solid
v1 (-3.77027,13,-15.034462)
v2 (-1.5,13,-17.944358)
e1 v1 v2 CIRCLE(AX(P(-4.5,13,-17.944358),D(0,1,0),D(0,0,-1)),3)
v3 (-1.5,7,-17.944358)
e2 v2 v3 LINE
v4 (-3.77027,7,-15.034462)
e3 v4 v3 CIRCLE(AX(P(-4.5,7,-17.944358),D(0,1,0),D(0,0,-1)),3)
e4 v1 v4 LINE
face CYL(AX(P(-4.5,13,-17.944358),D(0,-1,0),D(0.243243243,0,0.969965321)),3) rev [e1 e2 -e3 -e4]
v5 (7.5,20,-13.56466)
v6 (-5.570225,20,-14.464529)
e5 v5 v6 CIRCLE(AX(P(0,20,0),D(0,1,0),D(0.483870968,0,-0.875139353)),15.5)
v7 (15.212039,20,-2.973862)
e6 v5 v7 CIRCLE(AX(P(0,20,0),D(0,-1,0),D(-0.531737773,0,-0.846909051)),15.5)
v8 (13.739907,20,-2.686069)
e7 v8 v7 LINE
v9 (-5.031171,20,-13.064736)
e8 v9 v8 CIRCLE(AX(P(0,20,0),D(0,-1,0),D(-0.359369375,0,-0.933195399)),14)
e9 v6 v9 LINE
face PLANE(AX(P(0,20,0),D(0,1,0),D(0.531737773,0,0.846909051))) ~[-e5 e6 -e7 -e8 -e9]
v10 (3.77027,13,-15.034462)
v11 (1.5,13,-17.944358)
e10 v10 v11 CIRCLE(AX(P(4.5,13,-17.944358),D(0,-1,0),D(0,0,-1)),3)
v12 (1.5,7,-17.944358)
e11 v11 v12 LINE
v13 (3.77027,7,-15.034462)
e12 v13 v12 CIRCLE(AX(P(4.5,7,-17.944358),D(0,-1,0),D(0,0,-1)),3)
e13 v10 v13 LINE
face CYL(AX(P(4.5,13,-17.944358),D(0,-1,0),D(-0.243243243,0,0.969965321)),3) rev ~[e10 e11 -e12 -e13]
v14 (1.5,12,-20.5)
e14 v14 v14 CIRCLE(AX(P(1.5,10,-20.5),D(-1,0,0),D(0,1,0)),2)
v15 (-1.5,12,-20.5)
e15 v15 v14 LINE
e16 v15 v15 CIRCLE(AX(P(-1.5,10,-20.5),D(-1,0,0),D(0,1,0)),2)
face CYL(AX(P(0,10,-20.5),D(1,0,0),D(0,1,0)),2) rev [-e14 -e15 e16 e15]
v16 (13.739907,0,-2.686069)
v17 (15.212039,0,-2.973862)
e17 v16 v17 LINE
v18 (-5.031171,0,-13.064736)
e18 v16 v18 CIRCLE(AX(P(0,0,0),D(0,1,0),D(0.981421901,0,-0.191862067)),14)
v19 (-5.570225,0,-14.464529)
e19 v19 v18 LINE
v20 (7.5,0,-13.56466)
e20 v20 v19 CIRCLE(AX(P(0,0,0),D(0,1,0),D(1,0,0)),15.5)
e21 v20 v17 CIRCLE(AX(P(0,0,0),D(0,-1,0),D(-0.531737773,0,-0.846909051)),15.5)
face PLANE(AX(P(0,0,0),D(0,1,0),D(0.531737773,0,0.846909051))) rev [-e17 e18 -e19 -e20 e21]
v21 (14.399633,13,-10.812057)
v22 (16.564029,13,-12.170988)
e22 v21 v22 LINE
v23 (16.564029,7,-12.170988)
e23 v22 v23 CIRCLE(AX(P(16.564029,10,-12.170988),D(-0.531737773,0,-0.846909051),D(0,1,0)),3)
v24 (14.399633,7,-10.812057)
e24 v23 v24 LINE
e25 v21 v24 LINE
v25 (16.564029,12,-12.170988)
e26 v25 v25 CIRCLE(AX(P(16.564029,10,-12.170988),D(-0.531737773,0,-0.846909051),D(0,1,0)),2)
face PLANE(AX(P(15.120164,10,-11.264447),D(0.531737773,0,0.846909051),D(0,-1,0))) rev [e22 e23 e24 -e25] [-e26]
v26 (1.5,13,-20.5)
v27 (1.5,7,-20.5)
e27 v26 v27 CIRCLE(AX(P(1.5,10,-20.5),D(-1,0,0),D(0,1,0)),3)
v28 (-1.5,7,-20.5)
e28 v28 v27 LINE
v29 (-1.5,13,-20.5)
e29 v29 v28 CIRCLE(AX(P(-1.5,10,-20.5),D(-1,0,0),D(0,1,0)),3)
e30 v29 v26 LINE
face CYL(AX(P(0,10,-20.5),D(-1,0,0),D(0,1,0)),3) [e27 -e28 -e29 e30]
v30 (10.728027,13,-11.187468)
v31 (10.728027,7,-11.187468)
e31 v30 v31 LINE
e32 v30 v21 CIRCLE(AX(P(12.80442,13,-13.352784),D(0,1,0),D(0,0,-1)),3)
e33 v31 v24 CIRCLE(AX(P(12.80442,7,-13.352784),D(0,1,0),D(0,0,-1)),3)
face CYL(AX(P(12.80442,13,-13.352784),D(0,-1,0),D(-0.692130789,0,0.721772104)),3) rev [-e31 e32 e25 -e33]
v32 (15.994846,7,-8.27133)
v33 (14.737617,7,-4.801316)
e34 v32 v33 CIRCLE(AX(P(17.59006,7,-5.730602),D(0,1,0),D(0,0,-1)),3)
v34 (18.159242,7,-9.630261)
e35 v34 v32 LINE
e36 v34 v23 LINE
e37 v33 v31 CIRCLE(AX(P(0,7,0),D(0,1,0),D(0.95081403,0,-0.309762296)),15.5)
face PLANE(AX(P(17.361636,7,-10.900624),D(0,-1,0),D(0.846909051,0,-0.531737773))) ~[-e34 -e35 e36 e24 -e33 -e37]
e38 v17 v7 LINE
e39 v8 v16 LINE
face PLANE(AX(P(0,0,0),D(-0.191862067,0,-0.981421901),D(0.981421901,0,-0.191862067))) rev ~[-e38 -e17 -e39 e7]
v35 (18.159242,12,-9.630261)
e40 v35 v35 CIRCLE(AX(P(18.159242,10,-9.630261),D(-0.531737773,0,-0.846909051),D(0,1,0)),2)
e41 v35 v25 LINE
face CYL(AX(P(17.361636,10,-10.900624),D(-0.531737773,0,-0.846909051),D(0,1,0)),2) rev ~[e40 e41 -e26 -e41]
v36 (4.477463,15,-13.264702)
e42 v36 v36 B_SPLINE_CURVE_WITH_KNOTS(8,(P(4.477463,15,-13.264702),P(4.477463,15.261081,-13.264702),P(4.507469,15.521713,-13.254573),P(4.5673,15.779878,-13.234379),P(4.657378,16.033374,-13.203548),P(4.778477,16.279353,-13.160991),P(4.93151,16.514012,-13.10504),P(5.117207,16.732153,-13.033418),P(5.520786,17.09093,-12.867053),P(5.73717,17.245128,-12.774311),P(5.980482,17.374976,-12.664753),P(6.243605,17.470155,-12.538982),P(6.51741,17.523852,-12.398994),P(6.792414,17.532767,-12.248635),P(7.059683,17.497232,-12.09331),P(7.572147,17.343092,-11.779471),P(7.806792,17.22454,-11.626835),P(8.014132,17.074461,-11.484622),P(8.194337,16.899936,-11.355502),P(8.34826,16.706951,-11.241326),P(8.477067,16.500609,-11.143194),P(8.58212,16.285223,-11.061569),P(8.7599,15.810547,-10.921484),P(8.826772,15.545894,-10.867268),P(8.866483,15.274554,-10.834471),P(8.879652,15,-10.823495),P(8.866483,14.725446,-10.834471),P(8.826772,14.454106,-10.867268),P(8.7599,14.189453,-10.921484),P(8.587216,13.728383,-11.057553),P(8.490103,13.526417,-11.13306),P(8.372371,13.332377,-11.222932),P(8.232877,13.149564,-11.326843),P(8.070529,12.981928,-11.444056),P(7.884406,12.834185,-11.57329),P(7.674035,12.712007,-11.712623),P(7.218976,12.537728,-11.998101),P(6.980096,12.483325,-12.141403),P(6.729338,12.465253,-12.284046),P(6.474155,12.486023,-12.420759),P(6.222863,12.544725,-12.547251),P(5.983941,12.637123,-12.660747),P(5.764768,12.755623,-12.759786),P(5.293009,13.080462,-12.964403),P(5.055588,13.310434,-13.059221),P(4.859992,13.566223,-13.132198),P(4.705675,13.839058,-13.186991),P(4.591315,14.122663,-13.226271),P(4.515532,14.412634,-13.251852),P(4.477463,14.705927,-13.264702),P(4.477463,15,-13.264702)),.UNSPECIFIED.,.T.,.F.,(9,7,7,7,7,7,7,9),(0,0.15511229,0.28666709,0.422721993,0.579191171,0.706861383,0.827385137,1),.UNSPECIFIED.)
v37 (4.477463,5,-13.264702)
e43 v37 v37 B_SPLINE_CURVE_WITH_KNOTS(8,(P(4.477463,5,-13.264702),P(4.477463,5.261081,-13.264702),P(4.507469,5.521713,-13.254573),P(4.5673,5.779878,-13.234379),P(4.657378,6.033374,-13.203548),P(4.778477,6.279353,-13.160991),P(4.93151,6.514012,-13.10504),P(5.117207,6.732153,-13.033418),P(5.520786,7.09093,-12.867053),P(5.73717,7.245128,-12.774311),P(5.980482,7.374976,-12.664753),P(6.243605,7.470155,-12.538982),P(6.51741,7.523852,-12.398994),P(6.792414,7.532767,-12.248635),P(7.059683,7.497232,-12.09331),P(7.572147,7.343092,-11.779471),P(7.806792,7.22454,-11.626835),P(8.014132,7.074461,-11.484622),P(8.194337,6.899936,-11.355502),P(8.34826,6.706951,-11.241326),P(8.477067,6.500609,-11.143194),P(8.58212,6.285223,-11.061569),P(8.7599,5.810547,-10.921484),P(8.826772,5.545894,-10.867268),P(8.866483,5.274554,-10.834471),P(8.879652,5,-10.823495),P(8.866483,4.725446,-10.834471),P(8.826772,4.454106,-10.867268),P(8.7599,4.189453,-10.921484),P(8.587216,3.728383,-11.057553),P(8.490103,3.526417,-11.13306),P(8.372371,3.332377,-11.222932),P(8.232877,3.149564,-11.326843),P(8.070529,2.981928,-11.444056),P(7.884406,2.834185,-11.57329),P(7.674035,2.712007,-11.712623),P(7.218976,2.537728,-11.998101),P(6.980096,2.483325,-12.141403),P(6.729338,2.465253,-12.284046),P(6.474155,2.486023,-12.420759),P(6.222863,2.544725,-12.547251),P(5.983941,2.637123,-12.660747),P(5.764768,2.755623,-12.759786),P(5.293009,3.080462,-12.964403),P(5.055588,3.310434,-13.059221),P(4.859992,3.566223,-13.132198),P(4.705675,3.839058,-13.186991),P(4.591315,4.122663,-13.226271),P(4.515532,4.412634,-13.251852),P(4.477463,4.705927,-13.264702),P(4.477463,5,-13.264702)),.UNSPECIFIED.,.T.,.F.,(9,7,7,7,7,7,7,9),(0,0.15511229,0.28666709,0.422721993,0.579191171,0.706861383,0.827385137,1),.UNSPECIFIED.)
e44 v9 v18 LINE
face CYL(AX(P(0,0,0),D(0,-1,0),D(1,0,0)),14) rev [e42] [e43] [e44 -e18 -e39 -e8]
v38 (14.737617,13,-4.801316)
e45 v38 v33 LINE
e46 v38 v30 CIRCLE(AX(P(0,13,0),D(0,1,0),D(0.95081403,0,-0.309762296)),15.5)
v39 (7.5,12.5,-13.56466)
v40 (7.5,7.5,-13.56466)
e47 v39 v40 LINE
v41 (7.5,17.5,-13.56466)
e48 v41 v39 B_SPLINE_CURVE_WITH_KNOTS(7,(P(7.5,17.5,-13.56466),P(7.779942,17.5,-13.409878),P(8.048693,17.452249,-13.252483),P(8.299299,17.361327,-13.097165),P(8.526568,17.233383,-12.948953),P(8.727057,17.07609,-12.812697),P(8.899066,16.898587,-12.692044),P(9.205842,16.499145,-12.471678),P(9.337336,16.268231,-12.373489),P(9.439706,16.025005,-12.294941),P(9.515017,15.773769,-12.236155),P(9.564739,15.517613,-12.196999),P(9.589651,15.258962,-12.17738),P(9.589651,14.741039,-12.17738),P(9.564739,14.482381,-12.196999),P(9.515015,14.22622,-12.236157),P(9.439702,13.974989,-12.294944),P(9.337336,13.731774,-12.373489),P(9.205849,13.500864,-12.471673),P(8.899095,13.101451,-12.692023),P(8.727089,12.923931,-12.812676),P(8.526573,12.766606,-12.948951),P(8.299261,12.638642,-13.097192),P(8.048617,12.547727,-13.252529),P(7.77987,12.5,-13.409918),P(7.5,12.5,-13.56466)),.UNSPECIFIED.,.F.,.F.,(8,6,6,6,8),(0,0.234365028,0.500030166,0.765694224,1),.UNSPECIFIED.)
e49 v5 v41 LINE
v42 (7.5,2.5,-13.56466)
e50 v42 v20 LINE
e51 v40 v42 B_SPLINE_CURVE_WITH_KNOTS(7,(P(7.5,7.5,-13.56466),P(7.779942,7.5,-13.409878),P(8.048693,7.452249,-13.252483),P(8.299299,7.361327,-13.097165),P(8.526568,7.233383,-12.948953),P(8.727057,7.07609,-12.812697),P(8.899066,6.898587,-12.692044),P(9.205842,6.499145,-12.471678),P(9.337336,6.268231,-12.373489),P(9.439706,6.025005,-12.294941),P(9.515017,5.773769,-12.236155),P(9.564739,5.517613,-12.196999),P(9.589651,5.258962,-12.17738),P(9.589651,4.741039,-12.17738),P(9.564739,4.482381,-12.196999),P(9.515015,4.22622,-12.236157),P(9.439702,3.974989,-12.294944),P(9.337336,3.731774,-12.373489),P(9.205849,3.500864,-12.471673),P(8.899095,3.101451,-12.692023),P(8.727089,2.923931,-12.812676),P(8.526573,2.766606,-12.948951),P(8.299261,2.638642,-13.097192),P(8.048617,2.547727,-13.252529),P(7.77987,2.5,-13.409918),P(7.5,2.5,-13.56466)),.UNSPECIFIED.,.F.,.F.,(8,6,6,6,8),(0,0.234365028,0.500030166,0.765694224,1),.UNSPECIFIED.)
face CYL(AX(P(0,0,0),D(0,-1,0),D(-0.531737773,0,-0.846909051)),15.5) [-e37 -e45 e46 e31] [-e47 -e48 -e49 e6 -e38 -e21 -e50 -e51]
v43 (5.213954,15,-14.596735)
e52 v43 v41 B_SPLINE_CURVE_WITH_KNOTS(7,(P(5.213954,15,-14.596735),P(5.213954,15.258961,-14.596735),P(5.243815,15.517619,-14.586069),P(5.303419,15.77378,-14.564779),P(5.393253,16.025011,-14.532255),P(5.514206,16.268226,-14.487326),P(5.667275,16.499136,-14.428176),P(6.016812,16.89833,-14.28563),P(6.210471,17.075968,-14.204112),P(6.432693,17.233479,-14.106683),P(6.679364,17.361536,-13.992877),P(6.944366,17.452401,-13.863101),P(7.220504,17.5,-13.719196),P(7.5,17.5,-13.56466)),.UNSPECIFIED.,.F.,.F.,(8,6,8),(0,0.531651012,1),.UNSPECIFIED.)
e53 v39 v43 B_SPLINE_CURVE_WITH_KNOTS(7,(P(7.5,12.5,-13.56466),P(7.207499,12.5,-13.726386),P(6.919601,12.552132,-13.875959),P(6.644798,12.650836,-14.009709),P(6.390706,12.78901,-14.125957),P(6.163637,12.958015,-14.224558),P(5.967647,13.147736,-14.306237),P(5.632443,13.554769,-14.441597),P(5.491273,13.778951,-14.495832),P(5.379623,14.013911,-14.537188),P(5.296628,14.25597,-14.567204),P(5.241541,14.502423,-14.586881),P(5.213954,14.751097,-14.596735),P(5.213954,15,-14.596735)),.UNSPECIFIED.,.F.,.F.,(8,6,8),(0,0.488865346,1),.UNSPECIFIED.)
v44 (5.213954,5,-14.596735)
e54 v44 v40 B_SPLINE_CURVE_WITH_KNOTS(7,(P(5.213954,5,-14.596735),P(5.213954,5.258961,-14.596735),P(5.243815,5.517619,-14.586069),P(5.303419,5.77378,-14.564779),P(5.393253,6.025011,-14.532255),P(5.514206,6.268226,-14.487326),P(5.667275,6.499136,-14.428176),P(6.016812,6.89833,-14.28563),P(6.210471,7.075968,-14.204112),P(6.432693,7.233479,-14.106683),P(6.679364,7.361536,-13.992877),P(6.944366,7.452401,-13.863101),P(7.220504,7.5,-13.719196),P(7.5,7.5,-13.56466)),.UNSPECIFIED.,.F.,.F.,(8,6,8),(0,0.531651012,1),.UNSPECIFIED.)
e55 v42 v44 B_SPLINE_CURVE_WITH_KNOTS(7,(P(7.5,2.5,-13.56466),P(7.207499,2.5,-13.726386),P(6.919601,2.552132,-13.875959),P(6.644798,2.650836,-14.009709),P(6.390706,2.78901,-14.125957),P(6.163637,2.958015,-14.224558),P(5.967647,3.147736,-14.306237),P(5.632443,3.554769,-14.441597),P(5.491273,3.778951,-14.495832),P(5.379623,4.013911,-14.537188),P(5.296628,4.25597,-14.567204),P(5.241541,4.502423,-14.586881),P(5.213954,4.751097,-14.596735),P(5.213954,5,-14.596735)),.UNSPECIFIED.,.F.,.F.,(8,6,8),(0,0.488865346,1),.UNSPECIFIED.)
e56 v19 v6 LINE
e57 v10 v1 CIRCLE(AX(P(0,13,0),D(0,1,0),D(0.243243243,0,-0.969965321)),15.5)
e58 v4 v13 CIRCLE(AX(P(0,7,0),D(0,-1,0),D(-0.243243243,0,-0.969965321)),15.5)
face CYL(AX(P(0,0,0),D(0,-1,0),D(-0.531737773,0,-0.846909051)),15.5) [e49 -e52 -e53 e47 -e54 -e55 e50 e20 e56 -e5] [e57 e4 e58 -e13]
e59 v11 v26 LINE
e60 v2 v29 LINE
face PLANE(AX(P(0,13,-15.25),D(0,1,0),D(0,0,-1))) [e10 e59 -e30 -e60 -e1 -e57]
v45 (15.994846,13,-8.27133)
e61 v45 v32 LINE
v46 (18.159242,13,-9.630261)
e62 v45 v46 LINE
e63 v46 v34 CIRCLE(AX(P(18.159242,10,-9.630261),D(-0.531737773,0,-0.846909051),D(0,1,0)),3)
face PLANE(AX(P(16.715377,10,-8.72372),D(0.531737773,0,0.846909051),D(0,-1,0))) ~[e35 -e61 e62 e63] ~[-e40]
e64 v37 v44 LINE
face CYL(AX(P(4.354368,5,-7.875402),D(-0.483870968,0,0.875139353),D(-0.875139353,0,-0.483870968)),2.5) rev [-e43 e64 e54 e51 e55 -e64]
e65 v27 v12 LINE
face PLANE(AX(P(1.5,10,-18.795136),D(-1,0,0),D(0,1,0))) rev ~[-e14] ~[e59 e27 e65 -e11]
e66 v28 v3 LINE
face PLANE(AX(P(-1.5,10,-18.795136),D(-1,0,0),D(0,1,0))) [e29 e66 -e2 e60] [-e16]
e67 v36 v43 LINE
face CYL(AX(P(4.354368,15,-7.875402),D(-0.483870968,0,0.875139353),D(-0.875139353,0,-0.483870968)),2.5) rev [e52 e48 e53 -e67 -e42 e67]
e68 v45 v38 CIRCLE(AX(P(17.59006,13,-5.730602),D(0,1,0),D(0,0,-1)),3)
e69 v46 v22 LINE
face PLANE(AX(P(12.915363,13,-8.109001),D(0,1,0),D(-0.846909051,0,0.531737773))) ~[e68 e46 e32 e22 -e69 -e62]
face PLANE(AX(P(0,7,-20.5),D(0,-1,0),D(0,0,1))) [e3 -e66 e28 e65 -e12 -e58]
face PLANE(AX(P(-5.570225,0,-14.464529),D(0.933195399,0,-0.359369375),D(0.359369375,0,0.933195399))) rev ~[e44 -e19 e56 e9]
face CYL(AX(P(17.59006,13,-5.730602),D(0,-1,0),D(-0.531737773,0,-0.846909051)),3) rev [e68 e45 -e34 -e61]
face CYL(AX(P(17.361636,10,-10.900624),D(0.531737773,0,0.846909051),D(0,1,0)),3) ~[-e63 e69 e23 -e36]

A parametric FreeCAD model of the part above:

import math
import FreeCAD as App
import Part
import Sketcher


def edges_at(feature, points):
    """Names of the edges that pass closest to the given points."""
    edges = feature.Shape.Edges
    near = lambda p: min(range(len(edges)), key=lambda i: edges[i].distToShape(Part.Vertex(*p))[0])
    return sorted({f"Edge{near(p) + 1}" for p in points})


def add_polygon(sketch, points):
    """Adds a closed chain of lines whose ends are joined by coincident constraints."""
    first, n = sketch.GeometryCount, len(points)
    for a, b in zip(points, points[1:] + points[:1]):
        sketch.addGeometry(Part.LineSegment(App.Vector(*a, 0), App.Vector(*b, 0)), False)
    for i in range(n):
        sketch.addConstraint(Sketcher.Constraint("Coincident", first + i, 2, first + (i + 1) % n, 1))

doc = App.newDocument("Part")
body = doc.addObject("PartDesign::Body", "Body")

# Sketch on XZ plane
sketch1 = doc.addObject("Sketcher::SketchObject", "Sketch")
body.addObject(sketch1)
sketch1.AttachmentSupport = (doc.XZ_Plane, [""])
sketch1.MapMode = "FlatFace"
sketch1.addGeometry(Part.Circle(App.Vector(0, 0, 0), App.Vector(0, 0, 1), 16), False)
sketch1.addGeometry(Part.Circle(App.Vector(0, 0, 0), App.Vector(0, 0, 1), 14), False)
sketch1.addConstraint(Sketcher.Constraint("Coincident", 0, 3, -1, 1))
sketch1.addConstraint(Sketcher.Constraint("Coincident", 1, 3, -1, 1))
sketch1.addConstraint(Sketcher.Constraint("Diameter", 0, 31.0))
sketch1.addConstraint(Sketcher.Constraint("Diameter", 1, 28.0))
pad1 = doc.addObject("PartDesign::Pad", "Pad")
body.addObject(pad1)
pad1.Profile = sketch1
pad1.Length = 20
pad1.Reversed = True

# Sketch on XZ plane
sketch2 = doc.addObject("Sketcher::SketchObject", "Sketch001")
body.addObject(sketch2)
sketch2.AttachmentSupport = (doc.XZ_Plane, [""])
sketch2.MapMode = "FlatFace"
sketch2.AttachmentOffset = App.Placement(App.Vector(0, 0, -20), App.Rotation())
add_polygon(sketch2, [(-21, -21), (-21, 21), (21, 21), (21, -21)])  # lines 0-3
sketch2.addGeometry(Part.LineSegment(App.Vector(8, -14, 0), App.Vector(0, 0, 0)), False)  # 4
sketch2.addGeometry(Part.LineSegment(App.Vector(0, 0, 0), App.Vector(-8, -14, 0)), False)  # 5
sketch2.addGeometry(Part.ArcOfCircle(Part.Circle(App.Vector(0, 0, 0), App.Vector(0, 0, 1), 15), math.radians(-119), math.radians(-61)), False)  # 6
sketch2.addConstraint(Sketcher.Constraint("Coincident", 4, 2, 5, 1))
sketch2.addConstraint(Sketcher.Constraint("Coincident", 5, 2, 6, 1))
sketch2.addConstraint(Sketcher.Constraint("Coincident", 6, 2, 4, 1))
sketch2.addConstraint(Sketcher.Constraint("Vertical", 0))
sketch2.addConstraint(Sketcher.Constraint("Horizontal", 1))
sketch2.addConstraint(Sketcher.Constraint("Vertical", 2))
sketch2.addConstraint(Sketcher.Constraint("Horizontal", 3))
sketch2.addConstraint(Sketcher.Constraint("Coincident", 6, 3, -1, 1))
sketch2.addConstraint(Sketcher.Constraint("Coincident", 4, 2, -1, 1))
sketch2.addConstraint(Sketcher.Constraint("Symmetric", 0, 2, 2, 2, -1, 1))
sketch2.addConstraint(Sketcher.Constraint("Horizontal", 5, 2, 6, 2))
sketch2.addConstraint(Sketcher.Constraint("Equal", 3, 0))
sketch2.addConstraint(Sketcher.Constraint("Radius", 6, 15.5))
sketch2.addConstraint(Sketcher.Constraint("DistanceX", 5, 2, 6, 2, 15.0))
sketch2.addConstraint(Sketcher.Constraint("DistanceX", 1, 1, 1, 2, 42.638))
pocket1 = doc.addObject("PartDesign::Pocket", "Pocket")
body.addObject(pocket1)
pocket1.Profile = sketch2
pocket1.Type = "ThroughAll"
pocket1.Reversed = True

# Sketch on YZ plane
sketch3 = doc.addObject("Sketcher::SketchObject", "Sketch002")
body.addObject(sketch3)
sketch3.AttachmentSupport = (doc.YZ_Plane, [""])
sketch3.MapMode = "FlatFace"
sketch3.addGeometry(Part.LineSegment(App.Vector(7, -20.5, 0), App.Vector(7, -15.2, 0)), False)
sketch3.addGeometry(Part.LineSegment(App.Vector(7, -15.2, 0), App.Vector(13, -15.2, 0)), False)
sketch3.addGeometry(Part.LineSegment(App.Vector(13, -15.2, 0), App.Vector(13, -20.5, 0)), False)
sketch3.addGeometry(Part.ArcOfCircle(Part.Circle(App.Vector(10, -20.5, 0), App.Vector(0, 0, 1), 3), math.radians(180), math.radians(360)), False)
sketch3.addGeometry(Part.Circle(App.Vector(10, -20.5, 0), App.Vector(0, 0, 1), 2), False)
sketch3.addConstraint(Sketcher.Constraint("Coincident", 0, 2, 1, 1))
sketch3.addConstraint(Sketcher.Constraint("Coincident", 1, 2, 2, 1))
sketch3.addConstraint(Sketcher.Constraint("Tangent", 2, 2, 3, 2))
sketch3.addConstraint(Sketcher.Constraint("Tangent", 3, 1, 0, 1))
sketch3.addConstraint(Sketcher.Constraint("Vertical", 0))
sketch3.addConstraint(Sketcher.Constraint("Horizontal", 1))
sketch3.addConstraint(Sketcher.Constraint("Vertical", 2))
sketch3.addConstraint(Sketcher.Constraint("Coincident", 4, 3, 3, 3))
sketch3.addConstraint(Sketcher.Constraint("Diameter", 4, 4.0))
sketch3.addConstraint(Sketcher.Constraint("Radius", 3, 3.0))
sketch3.addConstraint(Sketcher.Constraint("DistanceX", -1, 1, 3, 3, 10.0))
sketch3.addConstraint(Sketcher.Constraint("DistanceY", 0, 1, 0, 2, 5.25))
sketch3.addConstraint(Sketcher.Constraint("DistanceY", 3, 3, -1, 1, 20.5))
pad2 = doc.addObject("PartDesign::Pad", "Pad001")
body.addObject(pad2)
pad2.Profile = sketch3
pad2.Length = 3
pad2.Midplane = True
doc.recompute()

datumplane = doc.addObject("PartDesign::Plane", "DatumPlane")
body.addObject(datumplane)
datumplane.Placement = App.Placement(App.Vector(0, 0, 0), App.Rotation(App.Vector(-0.483870968, 0, 0.875139353), App.Vector(0, -1, 0), App.Vector(0.875139353, 0, 0.483870968), "ZXY"))
mirrored = doc.addObject("PartDesign::Mirrored", "Mirrored")
body.addObject(mirrored)
mirrored.Originals = [pad1, pad2]
mirrored.MirrorPlane = (datumplane, [""])
body.Tip = mirrored

# Sketch on XZ plane
sketch4 = doc.addObject("Sketcher::SketchObject", "Sketch003")
body.addObject(sketch4)
sketch4.AttachmentSupport = (doc.XZ_Plane, [""])
sketch4.MapMode = "FlatFace"
sketch4.addGeometry(Part.LineSegment(App.Vector(0, 0, 0), App.Vector(-6, -14, 0)), False)
sketch4.addGeometry(Part.ArcOfCircle(Part.Circle(App.Vector(0, 0, 0), App.Vector(0, 0, 1), 16), math.radians(-11), math.radians(249)), False)
sketch4.addGeometry(Part.LineSegment(App.Vector(15, -3, 0), App.Vector(0, 0, 0)), False)
sketch4.addConstraint(Sketcher.Constraint("Coincident", 0, 2, 1, 2))
sketch4.addConstraint(Sketcher.Constraint("Coincident", 1, 1, 2, 1))
sketch4.addConstraint(Sketcher.Constraint("Coincident", 2, 2, 0, 1))
sketch4.addConstraint(Sketcher.Constraint("Coincident", 1, 3, -1, 1))
sketch4.addConstraint(Sketcher.Constraint("Coincident", 2, 2, -1, 1))
sketch4.addConstraint(Sketcher.Constraint("Radius", 1, 15.5))
sketch4.addConstraint(Sketcher.Constraint("DistanceY", 0, 2, -1, 1, 14.464529))
sketch4.addConstraint(Sketcher.Constraint("DistanceX", -1, 1, 1, 1, 15.212039))
pocket2 = doc.addObject("PartDesign::Pocket", "Pocket001")
body.addObject(pocket2)
pocket2.Profile = sketch4
pocket2.Type = "ThroughAll"
pocket2.Midplane = True

# Sketch on an angled plane
sketch5 = doc.addObject("Sketcher::SketchObject", "Sketch004")
body.addObject(sketch5)
sketch5.Placement = App.Placement(App.Vector(4.354368, 0, -7.875402), App.Rotation(App.Vector(-0.875139353, 0, -0.483870968), App.Vector(0, 1.000000001, 0), App.Vector(0.483870968, 0, -0.875139353), "ZXY"))
sketch5.addGeometry(Part.Circle(App.Vector(0, 15, 0), App.Vector(0, 0, 1), 2.5), False)
sketch5.addGeometry(Part.Circle(App.Vector(0, 5, 0), App.Vector(0, 0, 1), 2.5), False)
sketch5.addConstraint(Sketcher.Constraint("Equal", 0, 1))
sketch5.addConstraint(Sketcher.Constraint("PointOnObject", 0, 3, -2))
sketch5.addConstraint(Sketcher.Constraint("PointOnObject", 1, 3, -2))
sketch5.addConstraint(Sketcher.Constraint("Diameter", 0, 5.0))
sketch5.addConstraint(Sketcher.Constraint("DistanceY", -1, 1, 0, 3, 15.0))
sketch5.addConstraint(Sketcher.Constraint("DistanceY", -1, 1, 1, 3, 5.0))
pocket3 = doc.addObject("PartDesign::Pocket", "Pocket002")
body.addObject(pocket3)
pocket3.Profile = sketch5
pocket3.Length = 10
pocket3.Reversed = True
doc.recompute()

fillet = doc.addObject("PartDesign::Fillet", "Fillet")
body.addObject(fillet)
fillet.Base = (pocket3, edges_at(pocket3, [
    (-1.5, 10, -15.427),
    (1.5, 10, -15.427),
    (13.863, 10, -6.933),
    (12.268, 10, -9.474),
]))
fillet.Radius = 3

doc.recompute()
